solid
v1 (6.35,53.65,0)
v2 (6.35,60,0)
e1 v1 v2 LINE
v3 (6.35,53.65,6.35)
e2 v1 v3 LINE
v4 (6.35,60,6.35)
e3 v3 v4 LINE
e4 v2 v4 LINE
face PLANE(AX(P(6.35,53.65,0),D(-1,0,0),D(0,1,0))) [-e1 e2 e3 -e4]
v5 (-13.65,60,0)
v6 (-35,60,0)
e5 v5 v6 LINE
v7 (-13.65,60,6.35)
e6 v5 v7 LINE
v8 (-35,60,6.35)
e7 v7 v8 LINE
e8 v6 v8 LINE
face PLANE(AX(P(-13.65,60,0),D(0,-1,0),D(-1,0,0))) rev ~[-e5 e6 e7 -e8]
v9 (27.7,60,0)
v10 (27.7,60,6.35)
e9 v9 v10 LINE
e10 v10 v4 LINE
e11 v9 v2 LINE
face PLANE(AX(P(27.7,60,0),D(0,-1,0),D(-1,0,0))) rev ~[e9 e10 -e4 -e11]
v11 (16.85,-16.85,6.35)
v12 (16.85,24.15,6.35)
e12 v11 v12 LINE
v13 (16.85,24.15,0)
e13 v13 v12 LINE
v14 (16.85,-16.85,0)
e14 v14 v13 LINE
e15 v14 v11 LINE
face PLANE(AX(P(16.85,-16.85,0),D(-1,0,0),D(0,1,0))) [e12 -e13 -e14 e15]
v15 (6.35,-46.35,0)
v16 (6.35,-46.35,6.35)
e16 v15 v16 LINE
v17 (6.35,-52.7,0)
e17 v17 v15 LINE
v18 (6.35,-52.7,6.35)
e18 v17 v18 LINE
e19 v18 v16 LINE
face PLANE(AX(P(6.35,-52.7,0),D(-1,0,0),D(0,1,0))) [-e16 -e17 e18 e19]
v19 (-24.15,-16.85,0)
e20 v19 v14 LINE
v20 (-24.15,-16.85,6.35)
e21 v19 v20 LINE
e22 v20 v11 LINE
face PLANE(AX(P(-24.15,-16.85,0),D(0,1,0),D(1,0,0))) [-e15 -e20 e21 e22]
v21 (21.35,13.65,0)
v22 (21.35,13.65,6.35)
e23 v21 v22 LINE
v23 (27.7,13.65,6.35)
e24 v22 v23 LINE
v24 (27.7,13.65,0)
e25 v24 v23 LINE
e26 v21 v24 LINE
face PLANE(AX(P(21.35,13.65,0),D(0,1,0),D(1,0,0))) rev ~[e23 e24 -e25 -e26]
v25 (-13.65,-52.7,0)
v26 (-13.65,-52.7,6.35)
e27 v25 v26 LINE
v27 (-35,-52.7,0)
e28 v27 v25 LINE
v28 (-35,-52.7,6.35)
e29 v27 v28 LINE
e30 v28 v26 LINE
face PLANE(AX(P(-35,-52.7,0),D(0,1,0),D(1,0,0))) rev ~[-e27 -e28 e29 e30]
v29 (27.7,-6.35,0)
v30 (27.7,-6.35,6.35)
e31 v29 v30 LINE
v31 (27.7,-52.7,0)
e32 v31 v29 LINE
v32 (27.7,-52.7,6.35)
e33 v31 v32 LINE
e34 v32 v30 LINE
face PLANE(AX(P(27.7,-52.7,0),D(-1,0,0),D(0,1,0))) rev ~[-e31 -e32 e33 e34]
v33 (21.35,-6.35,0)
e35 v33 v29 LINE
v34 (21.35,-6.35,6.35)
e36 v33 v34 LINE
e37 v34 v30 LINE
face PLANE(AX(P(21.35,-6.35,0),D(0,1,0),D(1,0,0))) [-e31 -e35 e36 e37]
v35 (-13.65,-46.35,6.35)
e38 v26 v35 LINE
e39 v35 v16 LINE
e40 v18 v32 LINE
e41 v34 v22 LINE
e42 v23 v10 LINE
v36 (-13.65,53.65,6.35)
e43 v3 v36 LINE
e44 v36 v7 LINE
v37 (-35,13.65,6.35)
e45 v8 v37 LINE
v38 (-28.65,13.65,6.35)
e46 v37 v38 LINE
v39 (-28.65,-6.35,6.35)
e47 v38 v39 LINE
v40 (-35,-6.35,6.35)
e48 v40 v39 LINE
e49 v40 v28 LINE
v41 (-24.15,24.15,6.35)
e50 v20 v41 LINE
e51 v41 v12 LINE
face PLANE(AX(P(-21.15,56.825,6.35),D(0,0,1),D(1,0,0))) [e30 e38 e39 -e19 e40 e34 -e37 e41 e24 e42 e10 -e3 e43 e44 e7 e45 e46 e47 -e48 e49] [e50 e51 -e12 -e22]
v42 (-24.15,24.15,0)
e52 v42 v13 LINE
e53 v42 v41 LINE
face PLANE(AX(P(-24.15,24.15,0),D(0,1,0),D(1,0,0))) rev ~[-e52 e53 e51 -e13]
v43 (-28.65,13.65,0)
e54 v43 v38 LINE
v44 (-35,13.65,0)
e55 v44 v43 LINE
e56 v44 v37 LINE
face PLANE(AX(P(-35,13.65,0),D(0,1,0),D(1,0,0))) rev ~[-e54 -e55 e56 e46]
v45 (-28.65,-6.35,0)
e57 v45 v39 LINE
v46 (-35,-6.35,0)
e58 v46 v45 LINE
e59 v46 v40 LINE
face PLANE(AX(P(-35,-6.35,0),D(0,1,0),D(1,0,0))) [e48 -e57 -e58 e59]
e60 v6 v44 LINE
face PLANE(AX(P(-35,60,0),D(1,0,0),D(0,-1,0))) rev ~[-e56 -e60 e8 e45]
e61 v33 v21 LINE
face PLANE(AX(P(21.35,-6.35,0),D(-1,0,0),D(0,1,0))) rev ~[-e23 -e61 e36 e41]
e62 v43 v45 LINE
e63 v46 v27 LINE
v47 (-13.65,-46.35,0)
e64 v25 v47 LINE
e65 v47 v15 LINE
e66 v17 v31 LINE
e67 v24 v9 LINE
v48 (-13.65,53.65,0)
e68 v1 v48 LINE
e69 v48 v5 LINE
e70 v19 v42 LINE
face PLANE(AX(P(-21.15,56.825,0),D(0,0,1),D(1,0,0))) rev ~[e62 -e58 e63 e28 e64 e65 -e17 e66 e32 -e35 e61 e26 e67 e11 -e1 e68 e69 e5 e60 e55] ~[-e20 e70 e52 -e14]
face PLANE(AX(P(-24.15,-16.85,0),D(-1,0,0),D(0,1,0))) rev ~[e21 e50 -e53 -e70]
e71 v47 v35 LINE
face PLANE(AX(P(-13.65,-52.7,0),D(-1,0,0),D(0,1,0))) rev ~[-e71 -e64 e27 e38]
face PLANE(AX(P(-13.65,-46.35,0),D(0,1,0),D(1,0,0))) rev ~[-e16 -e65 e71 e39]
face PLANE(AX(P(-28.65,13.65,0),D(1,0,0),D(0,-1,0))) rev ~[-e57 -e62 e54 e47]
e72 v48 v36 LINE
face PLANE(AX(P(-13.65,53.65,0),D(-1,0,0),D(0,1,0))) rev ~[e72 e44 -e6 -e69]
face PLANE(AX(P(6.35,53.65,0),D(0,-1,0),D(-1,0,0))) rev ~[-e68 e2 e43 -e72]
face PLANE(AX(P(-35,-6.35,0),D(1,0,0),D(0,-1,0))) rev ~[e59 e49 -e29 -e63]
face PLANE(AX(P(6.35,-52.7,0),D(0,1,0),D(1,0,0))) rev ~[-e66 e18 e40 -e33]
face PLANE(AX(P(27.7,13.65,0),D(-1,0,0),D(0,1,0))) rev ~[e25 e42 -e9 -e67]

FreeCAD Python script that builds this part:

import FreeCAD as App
import Part
import Sketcher

doc = App.newDocument("Part")
body = doc.addObject("PartDesign::Body", "Body")

# Sketch on XY plane
sketch1 = body.newObject("Sketcher::SketchObject", "Sketch")
sketch1.AttachmentSupport = (doc.getObject("XY_Plane"), [""])
sketch1.MapMode = "FlatFace"
sketch1.addGeometry([
    Part.LineSegment(App.Vector(-35, 14, 0), App.Vector(-29, 14, 0)),  # 0
    Part.LineSegment(App.Vector(-29, 14, 0), App.Vector(-29, -6, 0)),  # 1
    Part.LineSegment(App.Vector(-29, -6, 0), App.Vector(-35, -6, 0)),  # 2
    Part.LineSegment(App.Vector(-35, -6, 0), App.Vector(-35, -53, 0)),  # 3
    Part.LineSegment(App.Vector(-35, -53, 0), App.Vector(-14, -53, 0)),  # 4
    Part.LineSegment(App.Vector(-14, -53, 0), App.Vector(-14, -46, 0)),  # 5
    Part.LineSegment(App.Vector(-14, -46, 0), App.Vector(6, -46, 0)),  # 6
    Part.LineSegment(App.Vector(6, -46, 0), App.Vector(6, -53, 0)),  # 7
    Part.LineSegment(App.Vector(6, -53, 0), App.Vector(28, -53, 0)),  # 8
    Part.LineSegment(App.Vector(28, -53, 0), App.Vector(28, -6, 0)),  # 9
    Part.LineSegment(App.Vector(28, -6, 0), App.Vector(21, -6, 0)),  # 10
    Part.LineSegment(App.Vector(21, -6, 0), App.Vector(21, 14, 0)),  # 11
    Part.LineSegment(App.Vector(21, 14, 0), App.Vector(28, 14, 0)),  # 12
    Part.LineSegment(App.Vector(28, 14, 0), App.Vector(28, 60, 0)),  # 13
    Part.LineSegment(App.Vector(28, 60, 0), App.Vector(6, 60, 0)),  # 14
    Part.LineSegment(App.Vector(6, 60, 0), App.Vector(6, 54, 0)),  # 15
    Part.LineSegment(App.Vector(6, 54, 0), App.Vector(-14, 54, 0)),  # 16
    Part.LineSegment(App.Vector(-14, 54, 0), App.Vector(-14, 60, 0)),  # 17
    Part.LineSegment(App.Vector(-14, 60, 0), App.Vector(-35, 60, 0)),  # 18
    Part.LineSegment(App.Vector(-35, 60, 0), App.Vector(-35, 14, 0)),  # 19
    Part.LineSegment(App.Vector(17, -17, 0), App.Vector(-24, -17, 0)),  # 20
    Part.LineSegment(App.Vector(-24, -17, 0), App.Vector(-24, 24, 0)),  # 21
    Part.LineSegment(App.Vector(-24, 24, 0), App.Vector(17, 24, 0)),  # 22
    Part.LineSegment(App.Vector(17, 24, 0), App.Vector(17, -17, 0)),  # 23
], False)
sketch1.addConstraint([
    Sketcher.Constraint("Coincident", 0, 2, 1, 1),
    Sketcher.Constraint("Coincident", 1, 2, 2, 1),
    Sketcher.Constraint("Coincident", 2, 2, 3, 1),
    Sketcher.Constraint("Coincident", 3, 2, 4, 1),
    Sketcher.Constraint("Coincident", 4, 2, 5, 1),
    Sketcher.Constraint("Coincident", 5, 2, 6, 1),
    Sketcher.Constraint("Coincident", 6, 2, 7, 1),
    Sketcher.Constraint("Coincident", 7, 2, 8, 1),
    Sketcher.Constraint("Coincident", 8, 2, 9, 1),
    Sketcher.Constraint("Coincident", 9, 2, 10, 1),
    Sketcher.Constraint("Coincident", 10, 2, 11, 1),
    Sketcher.Constraint("Coincident", 11, 2, 12, 1),
    Sketcher.Constraint("Coincident", 12, 2, 13, 1),
    Sketcher.Constraint("Coincident", 13, 2, 14, 1),
    Sketcher.Constraint("Coincident", 14, 2, 15, 1),
    Sketcher.Constraint("Coincident", 15, 2, 16, 1),
    Sketcher.Constraint("Coincident", 16, 2, 17, 1),
    Sketcher.Constraint("Coincident", 17, 2, 18, 1),
    Sketcher.Constraint("Coincident", 18, 2, 19, 1),
    Sketcher.Constraint("Coincident", 19, 2, 0, 1),
    Sketcher.Constraint("Coincident", 20, 2, 21, 1),
    Sketcher.Constraint("Coincident", 21, 2, 22, 1),
    Sketcher.Constraint("Coincident", 22, 2, 23, 1),
    Sketcher.Constraint("Coincident", 23, 2, 20, 1),
    Sketcher.Constraint("Horizontal", 0),
    Sketcher.Constraint("Vertical", 1),
    Sketcher.Constraint("Horizontal", 2),
    Sketcher.Constraint("Vertical", 3),
    Sketcher.Constraint("Horizontal", 4),
    Sketcher.Constraint("Vertical", 5),
    Sketcher.Constraint("Horizontal", 6),
    Sketcher.Constraint("Vertical", 7),
    Sketcher.Constraint("Horizontal", 8),
    Sketcher.Constraint("Vertical", 9),
    Sketcher.Constraint("Horizontal", 10),
    Sketcher.Constraint("Vertical", 11),
    Sketcher.Constraint("Horizontal", 12),
    Sketcher.Constraint("Vertical", 13),
    Sketcher.Constraint("Horizontal", 14),
    Sketcher.Constraint("Vertical", 15),
    Sketcher.Constraint("Horizontal", 16),
    Sketcher.Constraint("Vertical", 17),
    Sketcher.Constraint("Horizontal", 18),
    Sketcher.Constraint("Vertical", 19),
    Sketcher.Constraint("Horizontal", 20),
    Sketcher.Constraint("Vertical", 21),
    Sketcher.Constraint("Horizontal", 22),
    Sketcher.Constraint("Vertical", 23),
    Sketcher.Constraint("Horizontal", 4, 2, 7, 2),
    Sketcher.Constraint("Horizontal", 2, 2, 9, 2),
    Sketcher.Constraint("Horizontal", 0, 2, 11, 2),
    Sketcher.Constraint("Horizontal", 14, 2, 17, 2),
    Sketcher.Constraint("Vertical", 9, 2, 12, 2),
    Sketcher.Constraint("Vertical", 7, 2, 14, 2),
    Sketcher.Constraint("Vertical", 5, 2, 16, 2),
    Sketcher.Constraint("Vertical", 3, 2, 18, 2),
    Sketcher.Constraint("Equal", 4, 8),
    Sketcher.Constraint("Equal", 2, 10),
    Sketcher.Constraint("Equal", 16, 1),
    Sketcher.Constraint("Equal", 12, 5),
    Sketcher.Constraint("Equal", 9, 13),
    Sketcher.Constraint("Equal", 7, 15),
    Sketcher.Constraint("Equal", 22, 21),
    Sketcher.Constraint("DistanceX", 6, 1, 6, 2, 20.0),
    Sketcher.Constraint("DistanceX", 20, 2, 20, 1, 41.0),
    Sketcher.Constraint("DistanceX", 2, 2, -1, 1, 35.0),
    Sketcher.Constraint("DistanceY", -1, 1, 13, 2, 60.0),
    Sketcher.Constraint("DistanceX", 1, 2, 4, 2, 15.0),
    Sketcher.Constraint("DistanceY", 5, 2, 1, 2, 40.0),
    Sketcher.Constraint("DistanceX", 0, 1, 0, 2, 6.35),
    Sketcher.Constraint("DistanceX", 1, 2, 20, 2, 4.5),
    Sketcher.Constraint("DistanceY", 20, 2, 1, 2, 10.5),
])
pad1 = body.newObject("PartDesign::Pad", "Pad")
pad1.Profile = sketch1
pad1.Length = 6.35

doc.recompute()
